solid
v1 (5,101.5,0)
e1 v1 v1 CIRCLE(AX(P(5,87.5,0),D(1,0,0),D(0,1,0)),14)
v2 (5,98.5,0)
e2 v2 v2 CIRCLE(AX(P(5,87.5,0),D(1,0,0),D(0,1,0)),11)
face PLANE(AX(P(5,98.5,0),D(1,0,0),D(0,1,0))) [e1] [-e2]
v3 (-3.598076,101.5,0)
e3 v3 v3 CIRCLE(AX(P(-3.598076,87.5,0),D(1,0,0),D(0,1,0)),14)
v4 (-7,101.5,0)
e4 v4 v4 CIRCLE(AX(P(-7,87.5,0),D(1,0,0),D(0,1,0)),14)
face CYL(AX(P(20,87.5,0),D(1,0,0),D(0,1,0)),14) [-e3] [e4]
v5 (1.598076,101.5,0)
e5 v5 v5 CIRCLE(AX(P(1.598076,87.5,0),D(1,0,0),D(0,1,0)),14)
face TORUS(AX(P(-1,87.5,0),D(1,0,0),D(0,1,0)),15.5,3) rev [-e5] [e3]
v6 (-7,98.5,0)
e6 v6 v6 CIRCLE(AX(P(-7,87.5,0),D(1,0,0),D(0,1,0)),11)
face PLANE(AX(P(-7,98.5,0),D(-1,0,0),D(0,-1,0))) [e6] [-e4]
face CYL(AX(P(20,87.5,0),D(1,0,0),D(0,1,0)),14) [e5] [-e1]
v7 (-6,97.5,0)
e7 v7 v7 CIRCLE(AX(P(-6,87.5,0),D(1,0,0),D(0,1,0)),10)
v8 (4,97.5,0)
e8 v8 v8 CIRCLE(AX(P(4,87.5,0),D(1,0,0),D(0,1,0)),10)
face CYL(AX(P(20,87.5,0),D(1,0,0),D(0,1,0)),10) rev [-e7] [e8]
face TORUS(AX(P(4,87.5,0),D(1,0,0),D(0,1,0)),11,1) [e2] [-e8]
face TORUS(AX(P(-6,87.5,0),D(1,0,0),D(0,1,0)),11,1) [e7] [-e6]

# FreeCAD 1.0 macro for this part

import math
import FreeCAD as App
import Part
import Sketcher
Q = App.Units.Quantity

doc = App.newDocument("Part")
body = doc.addObject("PartDesign::Body", "Body")

# Sketch on XY plane
sketch1 = body.newObject("Sketcher::SketchObject", "Sketch")
sketch1.AttachmentSupport = (doc.getObject("XY_Plane"), [""])
sketch1.MapMode = "FlatFace"
sketch1.addGeometry([
    Part.LineSegment(App.Vector(-6, 97.5, 0), App.Vector(4, 97.5, 0)),  # 0
    Part.ArcOfCircle(Part.Circle(App.Vector(4, 98.5, 0), App.Vector(0, 0, 1), 1), math.radians(-90), math.radians(0)),  # 1
    Part.LineSegment(App.Vector(5, 98.5, 0), App.Vector(5, 101.5, 0)),  # 2
    Part.LineSegment(App.Vector(5, 101.5, 0), App.Vector(1.6, 101.5, 0)),  # 3
    Part.ArcOfCircle(Part.Circle(App.Vector(-1, 103, 0), App.Vector(0, 0, 1), 3), math.radians(-150), math.radians(-30)),  # 4
    Part.LineSegment(App.Vector(-3.6, 101.5, 0), App.Vector(-7, 101.5, 0)),  # 5
    Part.LineSegment(App.Vector(-7, 101.5, 0), App.Vector(-7, 98.5, 0)),  # 6
    Part.ArcOfCircle(Part.Circle(App.Vector(-6, 98.5, 0), App.Vector(0, 0, 1), 1), math.radians(-180), math.radians(-90)),  # 7
], False)
sketch1.addGeometry(Part.LineSegment(App.Vector(5, 87.5, 0), App.Vector(-7, 87.5, 0)), True)  # axis
sketch1.addConstraint([
    Sketcher.Constraint("Tangent", 0, 2, 1, 1),
    Sketcher.Constraint("Tangent", 1, 2, 2, 1),
    Sketcher.Constraint("Coincident", 2, 2, 3, 1),
    Sketcher.Constraint("Coincident", 3, 2, 4, 2),
    Sketcher.Constraint("Coincident", 4, 1, 5, 1),
    Sketcher.Constraint("Coincident", 5, 2, 6, 1),
    Sketcher.Constraint("Tangent", 6, 2, 7, 1),
    Sketcher.Constraint("Tangent", 7, 2, 0, 1),
    Sketcher.Constraint("Horizontal", 0),
    Sketcher.Constraint("Vertical", 2),
    Sketcher.Constraint("Horizontal", 3),
    Sketcher.Constraint("Horizontal", 5),
    Sketcher.Constraint("Vertical", 6),
    Sketcher.Constraint("Horizontal", 8),
    Sketcher.Constraint("Equal", 1, 7),
    Sketcher.Constraint("Horizontal", 3, 2, 4, 1),
    Sketcher.Constraint("Vertical", 2, 2, 8, 1),
    Sketcher.Constraint("Vertical", 6, 2, 8, 2),
    Sketcher.Constraint("Equal", 3, 5),
    Sketcher.Constraint("Radius", 1, Q("1 mm")),
    Sketcher.Constraint("Radius", 4, Q("3 mm")),
    Sketcher.Constraint("DistanceX", 0, 1, 0, 2, Q("10 mm")),
    Sketcher.Constraint("DistanceY", 2, 1, 2, 2, Q("3 mm")),
    Sketcher.Constraint("DistanceX", -1, 1, 1, 3, Q("4 mm")),
    Sketcher.Constraint("DistanceY", -1, 1, 4, 3, Q("103 mm")),
    Sketcher.Constraint("DistanceY", 8, 1, 0, 2, Q("10 mm")),
    Sketcher.Constraint("DistanceY", -1, 1, 1, 3, Q("98.5 mm")),
])
revolution = body.newObject("PartDesign::Revolution", "Revolution")
revolution.Profile = sketch1
revolution.ReferenceAxis = (sketch1, ["Axis0"])
revolution.Angle = 360

doc.recompute()
